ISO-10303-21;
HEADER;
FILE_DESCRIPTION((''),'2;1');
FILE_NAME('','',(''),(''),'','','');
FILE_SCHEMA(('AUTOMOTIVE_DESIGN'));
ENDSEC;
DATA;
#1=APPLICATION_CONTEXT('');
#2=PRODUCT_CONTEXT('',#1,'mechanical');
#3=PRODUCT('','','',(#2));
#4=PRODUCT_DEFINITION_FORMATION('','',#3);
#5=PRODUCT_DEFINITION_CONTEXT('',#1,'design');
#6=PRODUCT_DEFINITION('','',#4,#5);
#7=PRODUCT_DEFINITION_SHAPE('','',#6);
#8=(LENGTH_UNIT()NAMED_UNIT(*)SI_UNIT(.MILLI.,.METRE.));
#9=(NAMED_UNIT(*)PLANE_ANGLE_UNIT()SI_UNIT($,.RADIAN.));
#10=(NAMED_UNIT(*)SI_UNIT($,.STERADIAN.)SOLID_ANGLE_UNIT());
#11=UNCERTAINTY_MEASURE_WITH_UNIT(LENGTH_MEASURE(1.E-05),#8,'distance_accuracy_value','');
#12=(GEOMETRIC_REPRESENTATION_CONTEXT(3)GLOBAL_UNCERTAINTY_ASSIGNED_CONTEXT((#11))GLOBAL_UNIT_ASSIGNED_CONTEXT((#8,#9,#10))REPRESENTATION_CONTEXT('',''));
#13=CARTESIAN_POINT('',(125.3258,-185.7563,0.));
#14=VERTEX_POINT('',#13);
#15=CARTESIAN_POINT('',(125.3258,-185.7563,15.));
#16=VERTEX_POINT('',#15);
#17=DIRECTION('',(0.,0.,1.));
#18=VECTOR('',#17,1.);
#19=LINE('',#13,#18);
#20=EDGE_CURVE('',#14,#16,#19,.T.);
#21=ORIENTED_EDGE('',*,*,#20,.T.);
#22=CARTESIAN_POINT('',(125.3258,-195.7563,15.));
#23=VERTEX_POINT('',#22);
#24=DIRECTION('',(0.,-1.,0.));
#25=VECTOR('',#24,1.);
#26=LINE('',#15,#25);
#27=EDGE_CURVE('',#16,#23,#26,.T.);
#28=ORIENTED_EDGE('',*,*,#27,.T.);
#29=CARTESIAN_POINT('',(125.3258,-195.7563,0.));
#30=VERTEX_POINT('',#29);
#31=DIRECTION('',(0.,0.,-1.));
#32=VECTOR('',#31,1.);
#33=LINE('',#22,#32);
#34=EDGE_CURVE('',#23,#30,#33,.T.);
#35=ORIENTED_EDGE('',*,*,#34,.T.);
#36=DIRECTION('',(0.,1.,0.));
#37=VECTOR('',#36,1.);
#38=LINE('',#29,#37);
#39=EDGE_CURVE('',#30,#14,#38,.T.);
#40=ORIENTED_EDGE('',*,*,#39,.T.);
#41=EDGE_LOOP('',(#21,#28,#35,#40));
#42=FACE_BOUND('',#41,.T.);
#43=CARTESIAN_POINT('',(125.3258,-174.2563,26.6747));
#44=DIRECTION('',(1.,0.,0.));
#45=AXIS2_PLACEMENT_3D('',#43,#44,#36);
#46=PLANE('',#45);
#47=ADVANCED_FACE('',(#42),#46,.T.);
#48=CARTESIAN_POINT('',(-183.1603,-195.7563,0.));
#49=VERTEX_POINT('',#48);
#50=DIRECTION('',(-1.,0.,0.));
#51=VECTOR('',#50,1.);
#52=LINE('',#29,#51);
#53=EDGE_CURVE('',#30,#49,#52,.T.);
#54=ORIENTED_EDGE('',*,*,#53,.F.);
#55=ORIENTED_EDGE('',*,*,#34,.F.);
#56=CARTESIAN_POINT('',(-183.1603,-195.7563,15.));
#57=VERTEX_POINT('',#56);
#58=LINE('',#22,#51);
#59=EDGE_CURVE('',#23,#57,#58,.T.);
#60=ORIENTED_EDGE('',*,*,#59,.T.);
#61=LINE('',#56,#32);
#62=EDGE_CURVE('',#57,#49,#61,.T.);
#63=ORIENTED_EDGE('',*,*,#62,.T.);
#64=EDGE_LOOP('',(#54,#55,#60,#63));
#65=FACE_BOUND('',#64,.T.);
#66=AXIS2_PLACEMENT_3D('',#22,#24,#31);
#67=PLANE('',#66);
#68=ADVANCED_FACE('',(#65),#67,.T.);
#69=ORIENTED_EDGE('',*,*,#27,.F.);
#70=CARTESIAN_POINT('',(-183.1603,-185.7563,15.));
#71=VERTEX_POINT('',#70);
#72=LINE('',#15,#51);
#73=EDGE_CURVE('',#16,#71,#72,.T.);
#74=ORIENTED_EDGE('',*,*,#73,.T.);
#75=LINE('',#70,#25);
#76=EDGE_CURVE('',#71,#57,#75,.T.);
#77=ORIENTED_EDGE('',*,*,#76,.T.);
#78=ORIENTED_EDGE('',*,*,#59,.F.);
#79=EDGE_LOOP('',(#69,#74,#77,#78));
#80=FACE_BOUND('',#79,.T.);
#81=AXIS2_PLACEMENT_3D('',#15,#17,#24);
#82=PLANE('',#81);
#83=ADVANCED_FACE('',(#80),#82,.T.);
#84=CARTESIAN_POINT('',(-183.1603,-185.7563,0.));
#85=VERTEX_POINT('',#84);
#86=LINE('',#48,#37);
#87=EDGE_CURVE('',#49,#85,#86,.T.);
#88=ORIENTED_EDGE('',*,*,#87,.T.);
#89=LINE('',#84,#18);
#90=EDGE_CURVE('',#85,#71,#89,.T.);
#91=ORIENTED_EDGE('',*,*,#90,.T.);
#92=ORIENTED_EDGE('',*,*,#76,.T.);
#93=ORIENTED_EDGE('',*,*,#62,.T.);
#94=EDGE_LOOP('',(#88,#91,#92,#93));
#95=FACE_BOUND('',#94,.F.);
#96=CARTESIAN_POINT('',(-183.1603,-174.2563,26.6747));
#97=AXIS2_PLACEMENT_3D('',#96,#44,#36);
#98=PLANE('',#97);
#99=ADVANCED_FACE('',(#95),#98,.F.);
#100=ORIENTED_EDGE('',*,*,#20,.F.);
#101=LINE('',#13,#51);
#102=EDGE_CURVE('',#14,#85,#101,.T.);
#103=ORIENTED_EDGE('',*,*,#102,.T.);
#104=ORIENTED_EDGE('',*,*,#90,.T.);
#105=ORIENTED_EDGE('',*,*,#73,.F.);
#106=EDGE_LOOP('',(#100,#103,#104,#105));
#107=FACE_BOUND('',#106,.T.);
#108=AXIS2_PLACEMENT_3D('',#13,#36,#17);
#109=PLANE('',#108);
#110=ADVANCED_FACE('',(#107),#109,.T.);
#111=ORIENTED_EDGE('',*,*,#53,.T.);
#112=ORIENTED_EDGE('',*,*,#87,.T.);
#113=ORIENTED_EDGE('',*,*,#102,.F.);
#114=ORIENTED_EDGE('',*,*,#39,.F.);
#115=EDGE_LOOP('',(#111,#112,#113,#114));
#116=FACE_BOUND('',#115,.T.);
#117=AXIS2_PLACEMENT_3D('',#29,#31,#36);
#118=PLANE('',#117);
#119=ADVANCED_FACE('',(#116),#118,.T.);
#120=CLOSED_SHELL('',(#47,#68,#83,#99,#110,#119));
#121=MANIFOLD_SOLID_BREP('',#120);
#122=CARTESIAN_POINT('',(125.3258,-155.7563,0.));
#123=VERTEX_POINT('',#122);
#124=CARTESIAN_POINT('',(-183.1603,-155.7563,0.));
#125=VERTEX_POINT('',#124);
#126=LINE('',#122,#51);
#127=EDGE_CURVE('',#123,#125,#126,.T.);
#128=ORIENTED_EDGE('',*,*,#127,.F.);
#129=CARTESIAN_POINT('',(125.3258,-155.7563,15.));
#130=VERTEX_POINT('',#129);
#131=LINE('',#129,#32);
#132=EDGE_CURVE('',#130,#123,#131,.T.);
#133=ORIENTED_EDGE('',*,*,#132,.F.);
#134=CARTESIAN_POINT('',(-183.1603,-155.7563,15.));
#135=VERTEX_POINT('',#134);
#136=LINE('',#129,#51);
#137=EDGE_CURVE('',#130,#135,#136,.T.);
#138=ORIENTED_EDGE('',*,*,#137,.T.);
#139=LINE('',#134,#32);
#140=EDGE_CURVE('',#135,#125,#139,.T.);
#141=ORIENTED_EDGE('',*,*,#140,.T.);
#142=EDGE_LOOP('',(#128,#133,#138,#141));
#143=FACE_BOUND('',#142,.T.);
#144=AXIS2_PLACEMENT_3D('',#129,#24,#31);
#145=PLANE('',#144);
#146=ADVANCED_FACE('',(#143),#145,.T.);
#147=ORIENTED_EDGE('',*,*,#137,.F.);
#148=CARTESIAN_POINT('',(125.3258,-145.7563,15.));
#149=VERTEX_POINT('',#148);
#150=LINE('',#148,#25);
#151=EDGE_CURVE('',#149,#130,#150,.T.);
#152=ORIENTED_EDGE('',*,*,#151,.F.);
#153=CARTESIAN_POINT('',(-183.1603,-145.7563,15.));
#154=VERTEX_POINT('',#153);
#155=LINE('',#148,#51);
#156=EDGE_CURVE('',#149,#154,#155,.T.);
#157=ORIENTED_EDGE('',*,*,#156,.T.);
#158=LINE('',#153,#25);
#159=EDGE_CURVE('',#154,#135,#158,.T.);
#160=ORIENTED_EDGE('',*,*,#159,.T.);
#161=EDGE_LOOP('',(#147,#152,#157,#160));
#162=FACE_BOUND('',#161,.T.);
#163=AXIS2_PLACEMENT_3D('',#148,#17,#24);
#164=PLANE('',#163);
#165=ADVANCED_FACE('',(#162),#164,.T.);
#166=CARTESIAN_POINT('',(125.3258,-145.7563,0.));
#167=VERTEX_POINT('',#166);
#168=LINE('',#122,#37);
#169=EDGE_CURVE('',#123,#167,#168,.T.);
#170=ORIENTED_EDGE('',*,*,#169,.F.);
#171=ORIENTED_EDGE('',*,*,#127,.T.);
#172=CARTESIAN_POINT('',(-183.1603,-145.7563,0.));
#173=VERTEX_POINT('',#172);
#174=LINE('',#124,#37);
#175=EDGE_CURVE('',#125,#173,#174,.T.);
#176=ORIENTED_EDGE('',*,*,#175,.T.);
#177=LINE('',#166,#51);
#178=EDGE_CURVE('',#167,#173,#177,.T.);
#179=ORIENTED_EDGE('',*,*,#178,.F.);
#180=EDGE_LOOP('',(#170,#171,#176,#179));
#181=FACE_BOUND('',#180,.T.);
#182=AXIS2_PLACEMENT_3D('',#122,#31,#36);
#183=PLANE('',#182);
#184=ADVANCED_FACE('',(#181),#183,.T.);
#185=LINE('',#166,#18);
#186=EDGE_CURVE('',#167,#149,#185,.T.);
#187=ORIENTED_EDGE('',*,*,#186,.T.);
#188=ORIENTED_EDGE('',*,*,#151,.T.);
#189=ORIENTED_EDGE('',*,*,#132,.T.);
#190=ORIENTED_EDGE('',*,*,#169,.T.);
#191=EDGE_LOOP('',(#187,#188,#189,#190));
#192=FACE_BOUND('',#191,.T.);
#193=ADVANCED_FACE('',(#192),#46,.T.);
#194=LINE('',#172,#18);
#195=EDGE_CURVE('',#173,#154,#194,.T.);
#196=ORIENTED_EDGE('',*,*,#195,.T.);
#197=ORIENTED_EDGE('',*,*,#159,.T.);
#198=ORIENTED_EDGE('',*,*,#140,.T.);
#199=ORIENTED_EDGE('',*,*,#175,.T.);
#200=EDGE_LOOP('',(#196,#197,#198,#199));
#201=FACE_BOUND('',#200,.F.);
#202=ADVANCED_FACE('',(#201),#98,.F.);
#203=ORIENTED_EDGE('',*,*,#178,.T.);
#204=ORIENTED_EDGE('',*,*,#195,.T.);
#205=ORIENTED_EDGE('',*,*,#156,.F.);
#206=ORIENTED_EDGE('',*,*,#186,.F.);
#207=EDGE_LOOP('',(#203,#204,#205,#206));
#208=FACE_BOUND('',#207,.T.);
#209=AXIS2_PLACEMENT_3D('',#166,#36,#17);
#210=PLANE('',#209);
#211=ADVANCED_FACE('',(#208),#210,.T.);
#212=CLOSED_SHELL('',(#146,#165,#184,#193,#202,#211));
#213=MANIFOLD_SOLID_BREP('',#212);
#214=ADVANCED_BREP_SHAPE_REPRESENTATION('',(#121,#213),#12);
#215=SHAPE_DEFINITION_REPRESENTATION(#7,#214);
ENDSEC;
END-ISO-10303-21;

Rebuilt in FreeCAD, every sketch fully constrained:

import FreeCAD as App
import Part
import Sketcher

V = App.Vector

doc = App.newDocument("Part")
body = doc.addObject("PartDesign::Body", "Body")
body.AllowCompound = True

sketch1 = doc.addObject("Sketcher::SketchObject", "Sketch")
body.addObject(sketch1)
sketch1.AttachmentSupport = (doc.YZ_Plane, [""])
sketch1.MapMode = "FlatFace"
sketch1.AttachmentOffset = App.Placement(V(0, 0, 125.3258), App.Rotation())
sketch1.addGeometry([
    Part.LineSegment(V(-196, 15, 0), V(-196, 0, 0)),
    Part.LineSegment(V(-196, 0, 0), V(-186, 0, 0)),
    Part.LineSegment(V(-186, 0, 0), V(-186, 15, 0)),
    Part.LineSegment(V(-186, 15, 0), V(-196, 15, 0)),
    Part.LineSegment(V(-156, 15, 0), V(-156, 0, 0)),
    Part.LineSegment(V(-156, 0, 0), V(-146, 0, 0)),
    Part.LineSegment(V(-146, 0, 0), V(-146, 15, 0)),
    Part.LineSegment(V(-146, 15, 0), V(-156, 15, 0)),
], False)
sketch1.addConstraint([
    Sketcher.Constraint("Coincident", 0, 2, 1, 1),
    Sketcher.Constraint("Coincident", 1, 2, 2, 1),
    Sketcher.Constraint("Coincident", 2, 2, 3, 1),
    Sketcher.Constraint("Coincident", 3, 2, 0, 1),
    Sketcher.Constraint("Coincident", 4, 2, 5, 1),
    Sketcher.Constraint("Coincident", 5, 2, 6, 1),
    Sketcher.Constraint("Coincident", 6, 2, 7, 1),
    Sketcher.Constraint("Coincident", 7, 2, 4, 1),
    Sketcher.Constraint("Vertical", 0),
    Sketcher.Constraint("Horizontal", 1),
    Sketcher.Constraint("Vertical", 2),
    Sketcher.Constraint("Horizontal", 3),
    Sketcher.Constraint("Vertical", 4),
    Sketcher.Constraint("Horizontal", 5),
    Sketcher.Constraint("Vertical", 6),
    Sketcher.Constraint("Horizontal", 7),
    Sketcher.Constraint("PointOnObject", 0, 2, -1),
    Sketcher.Constraint("PointOnObject", 4, 2, -1),
    Sketcher.Constraint("Horizontal", 3, 2, 6, 2),
    Sketcher.Constraint("Equal", 3, 5),
    Sketcher.Constraint("DistanceX", 1, 1, 1, 2, 10.0),
    Sketcher.Constraint("DistanceY", 0, 2, 0, 1, 15.0),
    Sketcher.Constraint("DistanceX", 1, 2, 4, 2, 30.0),
    Sketcher.Constraint("DistanceX", 0, 2, -1, 1, 195.7563),
])
pad1 = doc.addObject("PartDesign::Pad", "Pad")
body.addObject(pad1)
pad1.Profile = sketch1
pad1.Length = 308.4861
pad1.Reversed = True

doc.recompute()
